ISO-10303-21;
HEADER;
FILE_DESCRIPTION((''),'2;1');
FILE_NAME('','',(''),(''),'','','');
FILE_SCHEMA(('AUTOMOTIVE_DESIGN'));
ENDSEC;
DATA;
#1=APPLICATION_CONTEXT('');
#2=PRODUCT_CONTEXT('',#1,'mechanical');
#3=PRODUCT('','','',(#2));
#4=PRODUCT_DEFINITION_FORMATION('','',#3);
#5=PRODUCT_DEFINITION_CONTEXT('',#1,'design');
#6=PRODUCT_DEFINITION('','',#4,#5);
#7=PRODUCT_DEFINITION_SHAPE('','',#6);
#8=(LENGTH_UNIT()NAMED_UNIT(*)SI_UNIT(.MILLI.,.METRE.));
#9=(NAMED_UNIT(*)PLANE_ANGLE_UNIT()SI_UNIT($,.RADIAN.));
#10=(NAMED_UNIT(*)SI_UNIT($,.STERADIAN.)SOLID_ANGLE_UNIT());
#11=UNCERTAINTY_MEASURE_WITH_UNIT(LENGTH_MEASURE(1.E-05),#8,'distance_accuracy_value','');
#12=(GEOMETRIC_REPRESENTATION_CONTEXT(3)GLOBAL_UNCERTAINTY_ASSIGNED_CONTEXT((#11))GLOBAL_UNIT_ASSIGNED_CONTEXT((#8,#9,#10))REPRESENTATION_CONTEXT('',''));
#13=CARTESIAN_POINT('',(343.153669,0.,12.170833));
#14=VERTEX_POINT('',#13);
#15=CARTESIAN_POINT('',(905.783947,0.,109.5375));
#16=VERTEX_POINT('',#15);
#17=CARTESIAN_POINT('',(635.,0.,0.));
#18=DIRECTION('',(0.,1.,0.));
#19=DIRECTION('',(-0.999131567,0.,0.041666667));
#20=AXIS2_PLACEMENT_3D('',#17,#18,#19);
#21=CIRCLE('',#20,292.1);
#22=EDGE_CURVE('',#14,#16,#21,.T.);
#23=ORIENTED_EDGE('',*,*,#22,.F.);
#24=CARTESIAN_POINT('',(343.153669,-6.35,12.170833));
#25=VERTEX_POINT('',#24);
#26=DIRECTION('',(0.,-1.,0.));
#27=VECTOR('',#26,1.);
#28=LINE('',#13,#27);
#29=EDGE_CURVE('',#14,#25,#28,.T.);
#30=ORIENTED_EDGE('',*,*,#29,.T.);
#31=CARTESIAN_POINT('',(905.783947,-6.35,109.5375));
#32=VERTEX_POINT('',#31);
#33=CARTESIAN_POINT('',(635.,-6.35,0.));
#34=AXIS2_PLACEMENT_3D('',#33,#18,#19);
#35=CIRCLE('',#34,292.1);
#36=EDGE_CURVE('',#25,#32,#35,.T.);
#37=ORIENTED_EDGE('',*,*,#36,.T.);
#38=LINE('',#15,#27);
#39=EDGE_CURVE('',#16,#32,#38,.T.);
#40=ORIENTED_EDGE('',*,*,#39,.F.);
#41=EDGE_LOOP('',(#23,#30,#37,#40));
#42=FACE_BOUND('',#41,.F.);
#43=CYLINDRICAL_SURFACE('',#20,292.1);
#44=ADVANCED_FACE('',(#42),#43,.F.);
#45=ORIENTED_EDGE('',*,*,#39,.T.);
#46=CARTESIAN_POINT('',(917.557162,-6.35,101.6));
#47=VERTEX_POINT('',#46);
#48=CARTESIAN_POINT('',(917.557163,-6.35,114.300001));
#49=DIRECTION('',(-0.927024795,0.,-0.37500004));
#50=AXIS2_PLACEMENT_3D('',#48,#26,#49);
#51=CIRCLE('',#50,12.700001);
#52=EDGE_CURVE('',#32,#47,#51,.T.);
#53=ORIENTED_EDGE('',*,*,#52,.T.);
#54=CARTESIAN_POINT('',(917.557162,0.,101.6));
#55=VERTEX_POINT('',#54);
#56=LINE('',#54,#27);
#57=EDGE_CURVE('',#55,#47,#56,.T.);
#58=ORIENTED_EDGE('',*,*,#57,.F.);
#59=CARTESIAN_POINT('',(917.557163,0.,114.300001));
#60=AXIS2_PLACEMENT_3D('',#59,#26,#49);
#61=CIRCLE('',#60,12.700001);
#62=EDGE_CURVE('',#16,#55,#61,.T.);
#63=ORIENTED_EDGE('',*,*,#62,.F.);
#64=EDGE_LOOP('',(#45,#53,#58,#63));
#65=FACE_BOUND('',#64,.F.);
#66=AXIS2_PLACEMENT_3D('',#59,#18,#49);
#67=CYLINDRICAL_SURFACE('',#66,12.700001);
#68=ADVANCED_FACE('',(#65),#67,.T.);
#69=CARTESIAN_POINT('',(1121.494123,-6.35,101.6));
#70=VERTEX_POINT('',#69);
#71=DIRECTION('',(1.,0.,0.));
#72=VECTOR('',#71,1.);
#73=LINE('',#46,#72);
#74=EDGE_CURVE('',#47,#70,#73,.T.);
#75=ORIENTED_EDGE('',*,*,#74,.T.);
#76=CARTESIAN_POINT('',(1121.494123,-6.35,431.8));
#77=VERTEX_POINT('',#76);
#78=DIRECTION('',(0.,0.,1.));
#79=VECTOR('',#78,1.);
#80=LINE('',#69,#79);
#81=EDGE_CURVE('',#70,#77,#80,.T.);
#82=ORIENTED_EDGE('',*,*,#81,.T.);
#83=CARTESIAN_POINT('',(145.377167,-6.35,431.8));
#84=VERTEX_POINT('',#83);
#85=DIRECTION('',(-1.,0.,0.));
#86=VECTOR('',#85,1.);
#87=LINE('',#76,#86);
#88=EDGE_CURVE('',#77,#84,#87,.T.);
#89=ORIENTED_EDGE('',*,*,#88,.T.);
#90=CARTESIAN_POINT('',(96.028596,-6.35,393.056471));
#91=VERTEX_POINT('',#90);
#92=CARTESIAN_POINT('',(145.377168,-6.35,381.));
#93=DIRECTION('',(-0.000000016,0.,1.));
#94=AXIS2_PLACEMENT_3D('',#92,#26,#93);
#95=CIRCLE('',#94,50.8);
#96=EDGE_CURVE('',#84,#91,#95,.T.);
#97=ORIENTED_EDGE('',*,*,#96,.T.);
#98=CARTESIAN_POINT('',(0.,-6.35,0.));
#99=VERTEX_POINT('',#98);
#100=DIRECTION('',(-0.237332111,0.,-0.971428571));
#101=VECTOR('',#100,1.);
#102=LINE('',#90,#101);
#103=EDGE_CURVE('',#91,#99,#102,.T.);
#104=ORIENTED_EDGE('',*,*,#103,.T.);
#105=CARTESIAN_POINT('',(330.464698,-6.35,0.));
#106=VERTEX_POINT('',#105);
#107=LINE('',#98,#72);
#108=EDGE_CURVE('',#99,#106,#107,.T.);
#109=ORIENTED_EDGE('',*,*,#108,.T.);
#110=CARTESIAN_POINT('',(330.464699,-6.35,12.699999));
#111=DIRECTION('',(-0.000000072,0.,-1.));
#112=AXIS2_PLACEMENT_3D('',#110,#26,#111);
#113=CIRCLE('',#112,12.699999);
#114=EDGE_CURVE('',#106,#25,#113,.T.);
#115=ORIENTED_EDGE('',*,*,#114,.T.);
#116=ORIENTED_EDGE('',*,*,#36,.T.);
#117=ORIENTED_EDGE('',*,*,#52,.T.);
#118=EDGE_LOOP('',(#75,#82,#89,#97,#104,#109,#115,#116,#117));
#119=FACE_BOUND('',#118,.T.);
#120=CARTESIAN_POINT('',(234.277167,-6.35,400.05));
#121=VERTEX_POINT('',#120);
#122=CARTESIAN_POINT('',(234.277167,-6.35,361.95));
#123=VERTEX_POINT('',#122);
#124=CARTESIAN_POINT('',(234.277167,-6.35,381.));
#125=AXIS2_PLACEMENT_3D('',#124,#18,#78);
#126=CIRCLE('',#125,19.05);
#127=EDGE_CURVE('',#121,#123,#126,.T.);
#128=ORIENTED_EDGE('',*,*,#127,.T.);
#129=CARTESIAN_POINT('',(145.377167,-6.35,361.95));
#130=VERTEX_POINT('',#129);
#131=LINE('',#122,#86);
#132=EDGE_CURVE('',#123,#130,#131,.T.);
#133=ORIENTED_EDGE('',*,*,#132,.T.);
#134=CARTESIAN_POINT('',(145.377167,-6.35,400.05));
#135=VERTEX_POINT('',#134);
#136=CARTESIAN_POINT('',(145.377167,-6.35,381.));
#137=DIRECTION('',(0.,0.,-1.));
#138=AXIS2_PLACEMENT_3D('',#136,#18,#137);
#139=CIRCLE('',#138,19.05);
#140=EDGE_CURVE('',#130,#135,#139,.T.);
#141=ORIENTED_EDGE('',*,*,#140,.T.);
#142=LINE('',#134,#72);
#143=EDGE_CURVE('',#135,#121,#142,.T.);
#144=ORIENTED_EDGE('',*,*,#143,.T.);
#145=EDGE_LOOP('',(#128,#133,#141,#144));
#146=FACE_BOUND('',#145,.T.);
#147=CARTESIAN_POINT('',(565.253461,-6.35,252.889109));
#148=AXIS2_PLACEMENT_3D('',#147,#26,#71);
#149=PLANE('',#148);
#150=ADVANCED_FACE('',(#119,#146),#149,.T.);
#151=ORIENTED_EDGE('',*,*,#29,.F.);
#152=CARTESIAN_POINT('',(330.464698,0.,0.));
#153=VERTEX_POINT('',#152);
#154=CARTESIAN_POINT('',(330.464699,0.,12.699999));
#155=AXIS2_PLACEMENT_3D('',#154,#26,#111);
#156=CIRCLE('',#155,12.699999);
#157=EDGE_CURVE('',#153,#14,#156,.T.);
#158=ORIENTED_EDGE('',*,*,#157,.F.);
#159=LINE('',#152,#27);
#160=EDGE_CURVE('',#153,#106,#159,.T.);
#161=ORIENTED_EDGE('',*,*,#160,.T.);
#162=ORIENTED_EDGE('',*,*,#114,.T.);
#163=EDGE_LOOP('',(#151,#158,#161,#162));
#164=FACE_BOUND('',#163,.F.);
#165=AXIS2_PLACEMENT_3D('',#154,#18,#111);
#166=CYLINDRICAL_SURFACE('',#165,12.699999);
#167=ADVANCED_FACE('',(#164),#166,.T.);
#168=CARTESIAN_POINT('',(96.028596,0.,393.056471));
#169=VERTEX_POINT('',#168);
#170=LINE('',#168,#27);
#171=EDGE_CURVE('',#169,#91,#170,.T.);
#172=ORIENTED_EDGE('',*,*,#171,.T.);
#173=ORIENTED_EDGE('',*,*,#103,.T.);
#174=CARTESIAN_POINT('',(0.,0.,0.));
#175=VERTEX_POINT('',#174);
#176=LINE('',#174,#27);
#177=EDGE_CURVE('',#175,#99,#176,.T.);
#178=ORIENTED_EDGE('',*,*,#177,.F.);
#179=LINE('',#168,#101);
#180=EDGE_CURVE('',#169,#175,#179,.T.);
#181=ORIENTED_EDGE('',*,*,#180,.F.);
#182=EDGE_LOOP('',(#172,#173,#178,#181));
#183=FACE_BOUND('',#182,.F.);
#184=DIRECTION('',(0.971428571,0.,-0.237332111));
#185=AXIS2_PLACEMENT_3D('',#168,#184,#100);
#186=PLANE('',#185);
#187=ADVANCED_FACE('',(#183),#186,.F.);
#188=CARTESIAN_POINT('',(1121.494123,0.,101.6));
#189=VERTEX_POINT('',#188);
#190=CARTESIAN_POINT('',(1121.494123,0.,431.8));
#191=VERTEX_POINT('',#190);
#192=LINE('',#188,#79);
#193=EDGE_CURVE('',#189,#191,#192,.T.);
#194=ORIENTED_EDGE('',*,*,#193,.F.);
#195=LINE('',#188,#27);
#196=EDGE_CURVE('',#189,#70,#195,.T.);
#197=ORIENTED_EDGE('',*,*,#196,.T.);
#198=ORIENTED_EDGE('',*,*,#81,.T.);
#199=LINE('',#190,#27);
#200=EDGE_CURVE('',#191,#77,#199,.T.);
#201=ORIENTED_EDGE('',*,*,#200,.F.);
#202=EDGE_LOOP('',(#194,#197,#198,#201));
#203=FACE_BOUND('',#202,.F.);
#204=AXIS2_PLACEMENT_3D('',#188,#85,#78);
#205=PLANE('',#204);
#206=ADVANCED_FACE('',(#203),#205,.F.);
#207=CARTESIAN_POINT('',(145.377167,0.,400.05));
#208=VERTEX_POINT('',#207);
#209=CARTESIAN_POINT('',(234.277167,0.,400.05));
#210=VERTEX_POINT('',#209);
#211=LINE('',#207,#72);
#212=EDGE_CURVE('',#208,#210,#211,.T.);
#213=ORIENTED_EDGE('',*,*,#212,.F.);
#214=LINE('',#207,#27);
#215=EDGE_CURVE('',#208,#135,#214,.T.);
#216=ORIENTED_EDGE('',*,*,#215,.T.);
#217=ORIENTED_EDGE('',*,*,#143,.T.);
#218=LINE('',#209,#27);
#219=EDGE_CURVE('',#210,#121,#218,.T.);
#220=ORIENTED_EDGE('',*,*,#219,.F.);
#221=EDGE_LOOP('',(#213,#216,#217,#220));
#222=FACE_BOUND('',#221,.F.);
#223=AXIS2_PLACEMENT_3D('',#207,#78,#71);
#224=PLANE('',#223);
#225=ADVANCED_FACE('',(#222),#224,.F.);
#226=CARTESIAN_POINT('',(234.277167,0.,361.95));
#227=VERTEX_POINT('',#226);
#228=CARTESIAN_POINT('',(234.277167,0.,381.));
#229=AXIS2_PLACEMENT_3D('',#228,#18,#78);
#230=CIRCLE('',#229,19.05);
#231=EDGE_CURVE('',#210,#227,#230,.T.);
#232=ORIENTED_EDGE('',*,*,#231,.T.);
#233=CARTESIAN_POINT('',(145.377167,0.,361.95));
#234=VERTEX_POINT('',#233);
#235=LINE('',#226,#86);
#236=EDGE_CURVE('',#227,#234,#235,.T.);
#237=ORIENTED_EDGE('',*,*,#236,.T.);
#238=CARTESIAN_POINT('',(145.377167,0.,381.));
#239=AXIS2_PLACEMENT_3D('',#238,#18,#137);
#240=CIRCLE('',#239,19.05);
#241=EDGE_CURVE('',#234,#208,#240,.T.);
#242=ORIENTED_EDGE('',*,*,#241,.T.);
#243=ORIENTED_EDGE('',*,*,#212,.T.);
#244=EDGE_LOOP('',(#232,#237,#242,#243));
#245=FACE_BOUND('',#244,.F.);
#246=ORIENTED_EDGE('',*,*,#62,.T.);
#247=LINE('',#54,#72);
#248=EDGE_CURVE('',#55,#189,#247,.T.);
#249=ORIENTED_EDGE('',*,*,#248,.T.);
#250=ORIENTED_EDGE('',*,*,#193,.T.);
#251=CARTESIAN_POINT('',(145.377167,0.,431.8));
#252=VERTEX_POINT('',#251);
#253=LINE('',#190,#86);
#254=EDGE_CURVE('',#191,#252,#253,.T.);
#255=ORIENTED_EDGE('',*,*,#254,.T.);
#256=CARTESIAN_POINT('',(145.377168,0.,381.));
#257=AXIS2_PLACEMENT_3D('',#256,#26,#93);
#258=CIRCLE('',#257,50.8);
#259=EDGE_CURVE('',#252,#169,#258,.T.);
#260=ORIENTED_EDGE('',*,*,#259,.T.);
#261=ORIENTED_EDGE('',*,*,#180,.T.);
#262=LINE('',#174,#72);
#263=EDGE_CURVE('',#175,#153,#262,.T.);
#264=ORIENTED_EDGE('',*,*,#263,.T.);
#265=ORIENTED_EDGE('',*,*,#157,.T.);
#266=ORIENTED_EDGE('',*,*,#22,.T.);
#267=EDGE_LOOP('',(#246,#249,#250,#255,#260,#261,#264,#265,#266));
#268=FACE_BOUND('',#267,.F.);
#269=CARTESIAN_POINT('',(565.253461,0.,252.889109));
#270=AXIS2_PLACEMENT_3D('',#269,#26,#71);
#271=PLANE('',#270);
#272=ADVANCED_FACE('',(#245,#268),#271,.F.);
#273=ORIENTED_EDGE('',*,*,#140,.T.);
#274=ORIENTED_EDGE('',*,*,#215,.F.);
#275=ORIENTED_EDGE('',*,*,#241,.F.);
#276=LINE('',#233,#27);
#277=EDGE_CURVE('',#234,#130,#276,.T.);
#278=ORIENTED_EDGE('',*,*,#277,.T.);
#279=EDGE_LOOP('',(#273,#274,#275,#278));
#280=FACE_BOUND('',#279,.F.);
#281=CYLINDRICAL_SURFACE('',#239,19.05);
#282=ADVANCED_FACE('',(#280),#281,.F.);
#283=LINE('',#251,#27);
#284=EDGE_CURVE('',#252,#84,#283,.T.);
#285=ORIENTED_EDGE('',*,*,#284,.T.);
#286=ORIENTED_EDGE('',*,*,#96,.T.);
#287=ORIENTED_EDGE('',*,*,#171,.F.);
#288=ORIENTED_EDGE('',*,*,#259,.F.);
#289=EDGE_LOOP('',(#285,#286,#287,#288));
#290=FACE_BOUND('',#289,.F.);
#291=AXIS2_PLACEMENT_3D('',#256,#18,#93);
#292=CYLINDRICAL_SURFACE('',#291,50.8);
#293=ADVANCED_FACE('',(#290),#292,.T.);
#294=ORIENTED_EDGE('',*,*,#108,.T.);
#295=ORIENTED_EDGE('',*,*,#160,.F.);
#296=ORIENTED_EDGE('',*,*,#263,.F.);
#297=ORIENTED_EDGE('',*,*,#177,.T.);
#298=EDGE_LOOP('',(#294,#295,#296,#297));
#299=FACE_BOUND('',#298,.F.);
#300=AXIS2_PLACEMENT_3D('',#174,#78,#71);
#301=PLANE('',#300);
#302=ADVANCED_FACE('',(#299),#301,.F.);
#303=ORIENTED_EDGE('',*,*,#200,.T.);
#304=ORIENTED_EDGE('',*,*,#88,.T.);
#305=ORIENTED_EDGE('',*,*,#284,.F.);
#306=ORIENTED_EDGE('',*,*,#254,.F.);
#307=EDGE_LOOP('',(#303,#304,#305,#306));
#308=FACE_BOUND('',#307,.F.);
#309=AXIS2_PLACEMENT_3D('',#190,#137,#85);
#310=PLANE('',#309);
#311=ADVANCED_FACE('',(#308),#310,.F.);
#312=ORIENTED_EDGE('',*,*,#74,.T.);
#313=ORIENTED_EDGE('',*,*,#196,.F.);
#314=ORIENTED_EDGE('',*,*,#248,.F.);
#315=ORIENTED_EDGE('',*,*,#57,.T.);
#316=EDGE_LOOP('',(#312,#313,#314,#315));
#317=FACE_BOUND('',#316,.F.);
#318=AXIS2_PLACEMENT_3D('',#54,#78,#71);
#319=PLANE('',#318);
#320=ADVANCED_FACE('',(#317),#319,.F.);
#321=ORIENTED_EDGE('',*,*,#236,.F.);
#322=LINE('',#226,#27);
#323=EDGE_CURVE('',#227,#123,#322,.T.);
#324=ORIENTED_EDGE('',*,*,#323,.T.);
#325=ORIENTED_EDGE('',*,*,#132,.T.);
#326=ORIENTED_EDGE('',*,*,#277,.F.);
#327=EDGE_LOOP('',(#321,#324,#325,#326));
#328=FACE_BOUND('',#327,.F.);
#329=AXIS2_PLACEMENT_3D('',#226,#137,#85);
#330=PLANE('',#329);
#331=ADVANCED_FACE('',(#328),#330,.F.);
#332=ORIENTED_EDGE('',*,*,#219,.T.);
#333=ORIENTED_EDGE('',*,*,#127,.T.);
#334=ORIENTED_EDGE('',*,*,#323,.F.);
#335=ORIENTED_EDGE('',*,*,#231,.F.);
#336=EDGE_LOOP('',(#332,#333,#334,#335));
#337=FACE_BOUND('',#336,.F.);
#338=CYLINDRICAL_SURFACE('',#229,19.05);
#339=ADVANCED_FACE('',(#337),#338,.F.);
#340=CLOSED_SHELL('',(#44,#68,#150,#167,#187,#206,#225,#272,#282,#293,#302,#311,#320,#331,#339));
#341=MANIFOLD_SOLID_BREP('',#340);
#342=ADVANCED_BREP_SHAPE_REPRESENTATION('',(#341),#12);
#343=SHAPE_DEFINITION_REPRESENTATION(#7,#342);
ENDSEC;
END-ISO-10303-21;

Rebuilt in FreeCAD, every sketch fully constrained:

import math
import FreeCAD as App
import Part
import Sketcher

V = App.Vector
Q = App.Units.Quantity

doc = App.newDocument("Part")
params = doc.addObject("Spreadsheet::Sheet", "Params")
for row, (alias, value) in enumerate([
    ("sketch1_radius", "2 in"),
    ("sketch1_radius2", "0.5 in"),
    ("sketch1_radius3", "11.5 in"),
    ("sketch1_height", "13 in"),
    ("sketch1_radius4", "0.75 in"),
    ("pad1_length", "0.25 in"),
], start=1):
    params.set(f"A{row}", alias)
    params.set(f"B{row}", "=" + value)
    params.setAlias(f"B{row}", alias)

body = doc.addObject("PartDesign::Body", "Body")

# Sketch on XZ plane
sketch1 = body.newObject("Sketcher::SketchObject", "Sketch")
sketch1.AttachmentSupport = (doc.getObject("XZ_Plane"), [""])
sketch1.MapMode = "FlatFace"
sketch1.addGeometry([
    Part.LineSegment(V(96, 393, 0), V(0, 0, 0)),  # 0
    Part.LineSegment(V(0, 0, 0), V(330, 0, 0)),  # 1
    Part.ArcOfCircle(Part.Circle(V(330, 13, 0), V(0, 0, 1), 13), math.radians(-90), math.radians(-2)),  # 2
    Part.ArcOfCircle(Part.Circle(V(635, 0, 0), V(0, 0, 1), 292), math.radians(22), math.radians(178)),  # 3
    Part.ArcOfCircle(Part.Circle(V(918, 114, 0), V(0, 0, 1), 13), math.radians(-158), math.radians(-90)),  # 4
    Part.LineSegment(V(918, 102, 0), V(1121, 102, 0)),  # 5
    Part.LineSegment(V(1121, 102, 0), V(1121, 432, 0)),  # 6
    Part.LineSegment(V(1121, 432, 0), V(145, 432, 0)),  # 7
    Part.ArcOfCircle(Part.Circle(V(145, 381, 0), V(0, 0, 1), 51), math.radians(90), math.radians(166)),  # 8
    Part.LineSegment(V(234, 362, 0), V(145, 362, 0)),  # 9
    Part.ArcOfCircle(Part.Circle(V(145, 381, 0), V(0, 0, 1), 19), math.radians(90), math.radians(270)),  # 10
    Part.LineSegment(V(145, 400, 0), V(234, 400, 0)),  # 11
    Part.ArcOfCircle(Part.Circle(V(234, 381, 0), V(0, 0, 1), 19), math.radians(-90), math.radians(90)),  # 12
], False)
sketch1.addConstraint([
    Sketcher.Constraint("Coincident", 0, 2, 1, 1),
    Sketcher.Constraint("Tangent", 1, 2, 2, 1),
    Sketcher.Constraint("Tangent", 2, 2, 3, 2),
    Sketcher.Constraint("Tangent", 3, 1, 4, 1),
    Sketcher.Constraint("Tangent", 4, 2, 5, 1),
    Sketcher.Constraint("Coincident", 5, 2, 6, 1),
    Sketcher.Constraint("Coincident", 6, 2, 7, 1),
    Sketcher.Constraint("Tangent", 7, 2, 8, 1),
    Sketcher.Constraint("Tangent", 8, 2, 0, 1),
    Sketcher.Constraint("Tangent", 9, 2, 10, 2),
    Sketcher.Constraint("Tangent", 10, 1, 11, 1),
    Sketcher.Constraint("Tangent", 11, 2, 12, 2),
    Sketcher.Constraint("Tangent", 12, 1, 9, 1),
    Sketcher.Constraint("Horizontal", 1),
    Sketcher.Constraint("Horizontal", 5),
    Sketcher.Constraint("Vertical", 6),
    Sketcher.Constraint("Horizontal", 7),
    Sketcher.Constraint("Horizontal", 9),
    Sketcher.Constraint("Horizontal", 11),
    Sketcher.Constraint("Coincident", 0, 2, -1, 1),
    Sketcher.Constraint("Coincident", 10, 3, 8, 3),
    Sketcher.Constraint("Equal", 2, 4),
    Sketcher.Constraint("PointOnObject", 3, 3, -1),
    Sketcher.Constraint("Radius", 8, Q("2 in")),
    Sketcher.Constraint("Radius", 2, Q("0.5 in")),
    Sketcher.Constraint("Radius", 3, Q("11.5 in")),
    Sketcher.Constraint("DistanceY", 6, 1, 6, 2, Q("13 in")),
    Sketcher.Constraint("Radius", 10, Q("0.75 in")),
    Sketcher.Constraint("DistanceX", 9, 2, 9, 1, Q("3.5 in")),
    Sketcher.Constraint("DistanceX", -1, 1, 3, 3, Q("25 in")),
    Sketcher.Constraint("DistanceY", -1, 1, 8, 3, Q("15 in")),
    Sketcher.Constraint("DistanceX", 5, 1, 5, 2, 203.936961),
    Sketcher.Constraint("DistanceX", 12, 3, 2, 2, 108.876502),
])
sketch1.setExpression("Constraints[23]", "Params.sketch1_radius")
sketch1.setExpression("Constraints[24]", "Params.sketch1_radius2")
sketch1.setExpression("Constraints[25]", "Params.sketch1_radius3")
sketch1.setExpression("Constraints[26]", "Params.sketch1_height")
sketch1.setExpression("Constraints[27]", "Params.sketch1_radius4")
pad1 = body.newObject("PartDesign::Pad", "Pad")
pad1.Profile = sketch1
pad1.setExpression("Length", "Params.pad1_length")

doc.recompute()
